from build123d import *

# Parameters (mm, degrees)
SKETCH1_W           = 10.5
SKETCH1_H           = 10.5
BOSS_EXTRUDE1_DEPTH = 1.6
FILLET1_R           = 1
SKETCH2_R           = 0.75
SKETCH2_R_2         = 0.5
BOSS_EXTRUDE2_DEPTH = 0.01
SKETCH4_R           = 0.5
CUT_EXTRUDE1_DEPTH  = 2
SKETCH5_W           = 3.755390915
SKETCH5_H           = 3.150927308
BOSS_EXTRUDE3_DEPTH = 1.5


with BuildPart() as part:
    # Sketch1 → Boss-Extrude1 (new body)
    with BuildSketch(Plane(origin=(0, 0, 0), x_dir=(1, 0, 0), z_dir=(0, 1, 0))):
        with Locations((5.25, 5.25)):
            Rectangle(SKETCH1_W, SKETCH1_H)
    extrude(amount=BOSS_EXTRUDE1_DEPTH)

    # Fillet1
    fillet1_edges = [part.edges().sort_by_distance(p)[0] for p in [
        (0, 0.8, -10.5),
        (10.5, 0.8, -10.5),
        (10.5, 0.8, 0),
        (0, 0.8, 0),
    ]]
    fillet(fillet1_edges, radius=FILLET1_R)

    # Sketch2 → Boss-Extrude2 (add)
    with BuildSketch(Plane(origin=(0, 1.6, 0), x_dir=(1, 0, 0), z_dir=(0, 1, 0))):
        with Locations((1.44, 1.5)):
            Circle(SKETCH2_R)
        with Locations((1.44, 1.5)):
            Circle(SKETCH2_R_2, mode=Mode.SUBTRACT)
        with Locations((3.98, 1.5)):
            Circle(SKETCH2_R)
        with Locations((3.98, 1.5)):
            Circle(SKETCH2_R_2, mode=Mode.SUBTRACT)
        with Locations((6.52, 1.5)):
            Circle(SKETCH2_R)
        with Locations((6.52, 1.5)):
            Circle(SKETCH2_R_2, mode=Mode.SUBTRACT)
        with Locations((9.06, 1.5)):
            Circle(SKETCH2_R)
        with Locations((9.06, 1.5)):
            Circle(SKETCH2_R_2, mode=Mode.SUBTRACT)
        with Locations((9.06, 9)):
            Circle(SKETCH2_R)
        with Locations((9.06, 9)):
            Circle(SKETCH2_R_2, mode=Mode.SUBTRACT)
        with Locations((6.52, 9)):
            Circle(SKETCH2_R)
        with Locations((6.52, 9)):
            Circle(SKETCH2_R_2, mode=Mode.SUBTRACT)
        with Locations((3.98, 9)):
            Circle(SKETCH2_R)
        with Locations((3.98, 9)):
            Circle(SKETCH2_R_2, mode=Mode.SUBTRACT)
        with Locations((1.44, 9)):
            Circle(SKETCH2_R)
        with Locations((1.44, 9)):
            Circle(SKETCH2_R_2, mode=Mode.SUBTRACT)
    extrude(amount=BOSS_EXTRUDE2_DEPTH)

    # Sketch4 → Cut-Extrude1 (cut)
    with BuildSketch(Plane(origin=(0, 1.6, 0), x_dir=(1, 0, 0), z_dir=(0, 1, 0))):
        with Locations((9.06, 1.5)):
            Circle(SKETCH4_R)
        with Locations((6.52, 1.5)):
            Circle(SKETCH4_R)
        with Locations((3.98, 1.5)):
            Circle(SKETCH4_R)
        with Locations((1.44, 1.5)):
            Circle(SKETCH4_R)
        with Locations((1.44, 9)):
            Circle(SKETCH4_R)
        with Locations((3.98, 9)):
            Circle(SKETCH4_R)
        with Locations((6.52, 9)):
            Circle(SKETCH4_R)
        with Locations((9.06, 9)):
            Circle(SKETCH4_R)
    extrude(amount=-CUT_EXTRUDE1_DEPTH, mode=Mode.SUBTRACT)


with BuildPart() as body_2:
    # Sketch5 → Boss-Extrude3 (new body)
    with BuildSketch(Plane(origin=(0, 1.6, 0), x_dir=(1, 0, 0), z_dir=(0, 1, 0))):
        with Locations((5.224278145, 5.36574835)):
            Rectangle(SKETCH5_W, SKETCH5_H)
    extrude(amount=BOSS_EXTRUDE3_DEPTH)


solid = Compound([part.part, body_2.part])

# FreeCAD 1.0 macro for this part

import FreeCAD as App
import Part
import Sketcher


def edges_at(feature, points):
    """Names of the edges that pass closest to the given points."""
    edges = feature.Shape.Edges
    near = lambda p: min(range(len(edges)), key=lambda i: edges[i].distToShape(Part.Vertex(*p))[0])
    return sorted({f"Edge{near(p) + 1}" for p in points})


def add_polygon(sketch, points):
    """Adds a closed chain of lines whose ends are joined by coincident constraints."""
    first, n = sketch.GeometryCount, len(points)
    for a, b in zip(points, points[1:] + points[:1]):
        sketch.addGeometry(Part.LineSegment(App.Vector(*a, 0), App.Vector(*b, 0)), False)
    for i in range(n):
        sketch.addConstraint(Sketcher.Constraint("Coincident", first + i, 2, first + (i + 1) % n, 1))

doc = App.newDocument("Part")
body = doc.addObject("PartDesign::Body", "Body")

# Sketch on XZ plane
sketch1 = body.newObject("Sketcher::SketchObject", "Sketch")
sketch1.AttachmentSupport = (doc.getObject("XZ_Plane"), [""])
sketch1.MapMode = "FlatFace"
add_polygon(sketch1, [(0, -10), (0, 0), (10, 0), (10, -10)])  # lines 0-3
sketch1.addConstraint(Sketcher.Constraint("Vertical", 0))
sketch1.addConstraint(Sketcher.Constraint("Horizontal", 1))
sketch1.addConstraint(Sketcher.Constraint("Vertical", 2))
sketch1.addConstraint(Sketcher.Constraint("Horizontal", 3))
sketch1.addConstraint(Sketcher.Constraint("Coincident", 0, 2, -1, 1))
sketch1.addConstraint(Sketcher.Constraint("Equal", 3, 0))
sketch1.addConstraint(Sketcher.Constraint("DistanceX", 1, 1, 1, 2, 10.5))
pad1 = body.newObject("PartDesign::Pad", "Pad")
pad1.Profile = sketch1
pad1.Length = 1.6
pad1.Reversed = True
doc.recompute()

fillet = body.newObject("PartDesign::Fillet", "Fillet")
fillet.Base = (pad1, edges_at(pad1, [
    (0, 0.8, -10.5),
    (10.5, 0.8, -10.5),
    (10.5, 0.8, 0),
    (0, 0.8, 0),
]))
fillet.Radius = 1

# Sketch on XZ plane
sketch2 = body.newObject("Sketcher::SketchObject", "Sketch001")
sketch2.AttachmentSupport = (doc.getObject("XZ_Plane"), [""])
sketch2.MapMode = "FlatFace"
sketch2.AttachmentOffset = App.Placement(App.Vector(0, 0, -1.6), App.Rotation())
sketch2.addGeometry(Part.Circle(App.Vector(1.4, -1.5, 0), App.Vector(0, 0, 1), 0.8), False)
sketch2.addGeometry(Part.Circle(App.Vector(1.4, -1.5, 0), App.Vector(0, 0, 1), 0.5), False)
sketch2.addGeometry(Part.Circle(App.Vector(4, -1.5, 0), App.Vector(0, 0, 1), 0.8), False)
sketch2.addGeometry(Part.Circle(App.Vector(4, -1.5, 0), App.Vector(0, 0, 1), 0.5), False)
sketch2.addGeometry(Part.Circle(App.Vector(6.5, -1.5, 0), App.Vector(0, 0, 1), 0.8), False)
sketch2.addGeometry(Part.Circle(App.Vector(6.5, -1.5, 0), App.Vector(0, 0, 1), 0.5), False)
sketch2.addGeometry(Part.Circle(App.Vector(9.1, -1.5, 0), App.Vector(0, 0, 1), 0.8), False)
sketch2.addGeometry(Part.Circle(App.Vector(9.1, -1.5, 0), App.Vector(0, 0, 1), 0.5), False)
sketch2.addGeometry(Part.Circle(App.Vector(9.1, -9, 0), App.Vector(0, 0, 1), 0.8), False)
sketch2.addGeometry(Part.Circle(App.Vector(9.1, -9, 0), App.Vector(0, 0, 1), 0.5), False)
sketch2.addGeometry(Part.Circle(App.Vector(6.5, -9, 0), App.Vector(0, 0, 1), 0.8), False)
sketch2.addGeometry(Part.Circle(App.Vector(6.5, -9, 0), App.Vector(0, 0, 1), 0.5), False)
sketch2.addGeometry(Part.Circle(App.Vector(4, -9, 0), App.Vector(0, 0, 1), 0.8), False)
sketch2.addGeometry(Part.Circle(App.Vector(4, -9, 0), App.Vector(0, 0, 1), 0.5), False)
sketch2.addGeometry(Part.Circle(App.Vector(1.4, -9, 0), App.Vector(0, 0, 1), 0.8), False)
sketch2.addGeometry(Part.Circle(App.Vector(1.4, -9, 0), App.Vector(0, 0, 1), 0.5), False)
sketch2.addConstraint(Sketcher.Constraint("Coincident", 1, 3, 0, 3))
sketch2.addConstraint(Sketcher.Constraint("Coincident", 3, 3, 2, 3))
sketch2.addConstraint(Sketcher.Constraint("Coincident", 5, 3, 4, 3))
sketch2.addConstraint(Sketcher.Constraint("Coincident", 7, 3, 6, 3))
sketch2.addConstraint(Sketcher.Constraint("Coincident", 9, 3, 8, 3))
sketch2.addConstraint(Sketcher.Constraint("Coincident", 11, 3, 10, 3))
sketch2.addConstraint(Sketcher.Constraint("Coincident", 13, 3, 12, 3))
sketch2.addConstraint(Sketcher.Constraint("Coincident", 15, 3, 14, 3))
sketch2.addConstraint(Sketcher.Constraint("Equal", 0, 2))
sketch2.addConstraint(Sketcher.Constraint("Equal", 1, 3))
sketch2.addConstraint(Sketcher.Constraint("Equal", 2, 4))
sketch2.addConstraint(Sketcher.Constraint("Equal", 3, 5))
sketch2.addConstraint(Sketcher.Constraint("Equal", 4, 6))
sketch2.addConstraint(Sketcher.Constraint("Equal", 5, 7))
sketch2.addConstraint(Sketcher.Constraint("Equal", 6, 8))
sketch2.addConstraint(Sketcher.Constraint("Equal", 7, 9))
sketch2.addConstraint(Sketcher.Constraint("Equal", 8, 10))
sketch2.addConstraint(Sketcher.Constraint("Equal", 9, 11))
sketch2.addConstraint(Sketcher.Constraint("Equal", 10, 12))
sketch2.addConstraint(Sketcher.Constraint("Equal", 11, 13))
sketch2.addConstraint(Sketcher.Constraint("Equal", 12, 14))
sketch2.addConstraint(Sketcher.Constraint("Equal", 13, 15))
sketch2.addConstraint(Sketcher.Constraint("Horizontal", 1, 3, 2, 3))
sketch2.addConstraint(Sketcher.Constraint("Horizontal", 3, 3, 4, 3))
sketch2.addConstraint(Sketcher.Constraint("Horizontal", 5, 3, 6, 3))
sketch2.addConstraint(Sketcher.Constraint("Horizontal", 9, 3, 10, 3))
sketch2.addConstraint(Sketcher.Constraint("Horizontal", 11, 3, 12, 3))
sketch2.addConstraint(Sketcher.Constraint("Horizontal", 13, 3, 14, 3))
sketch2.addConstraint(Sketcher.Constraint("Vertical", 7, 3, 8, 3))
sketch2.addConstraint(Sketcher.Constraint("Vertical", 5, 3, 10, 3))
sketch2.addConstraint(Sketcher.Constraint("Vertical", 3, 3, 12, 3))
sketch2.addConstraint(Sketcher.Constraint("Vertical", 1, 3, 14, 3))
sketch2.addConstraint(Sketcher.Constraint("Diameter", 1, 1.0))
sketch2.addConstraint(Sketcher.Constraint("Diameter", 0, 1.5))
sketch2.addConstraint(Sketcher.Constraint("DistanceY", 8, 3, -1, 1, 9.0))
sketch2.addConstraint(Sketcher.Constraint("DistanceY", 0, 3, -1, 1, 1.5))
sketch2.addConstraint(Sketcher.Constraint("DistanceX", -1, 1, 0, 3, 1.44))
sketch2.addConstraint(Sketcher.Constraint("DistanceX", -1, 1, 2, 3, 3.98))
sketch2.addConstraint(Sketcher.Constraint("DistanceX", -1, 1, 4, 3, 6.52))
sketch2.addConstraint(Sketcher.Constraint("DistanceX", -1, 1, 6, 3, 9.06))
pad2 = body.newObject("PartDesign::Pad", "Pad001")
pad2.Profile = sketch2
pad2.Length = 0.01
pad2.Reversed = True

# Sketch on XZ plane
sketch3 = body.newObject("Sketcher::SketchObject", "Sketch002")
sketch3.AttachmentSupport = (doc.getObject("XZ_Plane"), [""])
sketch3.MapMode = "FlatFace"
sketch3.AttachmentOffset = App.Placement(App.Vector(0, 0, -1.6), App.Rotation())
sketch3.addGeometry(Part.Circle(App.Vector(9.1, -1.5, 0), App.Vector(0, 0, 1), 0.5), False)
sketch3.addGeometry(Part.Circle(App.Vector(6.5, -1.5, 0), App.Vector(0, 0, 1), 0.5), False)
sketch3.addGeometry(Part.Circle(App.Vector(4, -1.5, 0), App.Vector(0, 0, 1), 0.5), False)
sketch3.addGeometry(Part.Circle(App.Vector(1.4, -1.5, 0), App.Vector(0, 0, 1), 0.5), False)
sketch3.addGeometry(Part.Circle(App.Vector(1.4, -9, 0), App.Vector(0, 0, 1), 0.5), False)
sketch3.addGeometry(Part.Circle(App.Vector(4, -9, 0), App.Vector(0, 0, 1), 0.5), False)
sketch3.addGeometry(Part.Circle(App.Vector(6.5, -9, 0), App.Vector(0, 0, 1), 0.5), False)
sketch3.addGeometry(Part.Circle(App.Vector(9.1, -9, 0), App.Vector(0, 0, 1), 0.5), False)
sketch3.addConstraint(Sketcher.Constraint("Equal", 0, 1))
sketch3.addConstraint(Sketcher.Constraint("Equal", 1, 2))
sketch3.addConstraint(Sketcher.Constraint("Equal", 2, 3))
sketch3.addConstraint(Sketcher.Constraint("Equal", 3, 4))
sketch3.addConstraint(Sketcher.Constraint("Equal", 4, 5))
sketch3.addConstraint(Sketcher.Constraint("Equal", 5, 6))
sketch3.addConstraint(Sketcher.Constraint("Equal", 6, 7))
sketch3.addConstraint(Sketcher.Constraint("Horizontal", 0, 3, 1, 3))
sketch3.addConstraint(Sketcher.Constraint("Horizontal", 1, 3, 2, 3))
sketch3.addConstraint(Sketcher.Constraint("Horizontal", 2, 3, 3, 3))
sketch3.addConstraint(Sketcher.Constraint("Horizontal", 4, 3, 5, 3))
sketch3.addConstraint(Sketcher.Constraint("Horizontal", 5, 3, 6, 3))
sketch3.addConstraint(Sketcher.Constraint("Horizontal", 6, 3, 7, 3))
sketch3.addConstraint(Sketcher.Constraint("Vertical", 3, 3, 4, 3))
sketch3.addConstraint(Sketcher.Constraint("Vertical", 2, 3, 5, 3))
sketch3.addConstraint(Sketcher.Constraint("Vertical", 1, 3, 6, 3))
sketch3.addConstraint(Sketcher.Constraint("Vertical", 0, 3, 7, 3))
sketch3.addConstraint(Sketcher.Constraint("Diameter", 0, 1.0))
sketch3.addConstraint(Sketcher.Constraint("DistanceY", 4, 3, -1, 1, 9.0))
sketch3.addConstraint(Sketcher.Constraint("DistanceY", 0, 3, -1, 1, 1.5))
sketch3.addConstraint(Sketcher.Constraint("DistanceX", -1, 1, 0, 3, 9.06))
sketch3.addConstraint(Sketcher.Constraint("DistanceX", -1, 1, 1, 3, 6.52))
sketch3.addConstraint(Sketcher.Constraint("DistanceX", -1, 1, 2, 3, 3.98))
sketch3.addConstraint(Sketcher.Constraint("DistanceX", -1, 1, 3, 3, 1.44))
pocket1 = body.newObject("PartDesign::Pocket", "Pocket")
pocket1.Profile = sketch3
pocket1.Length = 2
pocket1.Reversed = True
body2 = doc.addObject("PartDesign::Body", "Body001")

# Sketch on XZ plane
sketch4 = body2.newObject("Sketcher::SketchObject", "Sketch003")
sketch4.AttachmentSupport = (doc.getObject("XZ_Plane001"), [""])
sketch4.MapMode = "FlatFace"
sketch4.AttachmentOffset = App.Placement(App.Vector(0, 0, -1.6), App.Rotation())
add_polygon(sketch4, [(3.3, -6.9), (3.3, -3.8), (7.1, -3.8), (7.1, -6.9)])  # lines 0-3
sketch4.addConstraint(Sketcher.Constraint("Vertical", 0))
sketch4.addConstraint(Sketcher.Constraint("Horizontal", 1))
sketch4.addConstraint(Sketcher.Constraint("Vertical", 2))
sketch4.addConstraint(Sketcher.Constraint("Horizontal", 3))
sketch4.addConstraint(Sketcher.Constraint("DistanceX", 1, 1, 1, 2, 3.755391))
sketch4.addConstraint(Sketcher.Constraint("DistanceY", 0, 1, 0, 2, 3.150927))
sketch4.addConstraint(Sketcher.Constraint("DistanceX", -1, 1, 0, 2, 3.346583))
sketch4.addConstraint(Sketcher.Constraint("DistanceY", 0, 2, -1, 1, 3.790285))
pad3 = body2.newObject("PartDesign::Pad", "Pad002")
pad3.Profile = sketch4
pad3.Length = 1.5
pad3.Reversed = True

doc.recompute()
